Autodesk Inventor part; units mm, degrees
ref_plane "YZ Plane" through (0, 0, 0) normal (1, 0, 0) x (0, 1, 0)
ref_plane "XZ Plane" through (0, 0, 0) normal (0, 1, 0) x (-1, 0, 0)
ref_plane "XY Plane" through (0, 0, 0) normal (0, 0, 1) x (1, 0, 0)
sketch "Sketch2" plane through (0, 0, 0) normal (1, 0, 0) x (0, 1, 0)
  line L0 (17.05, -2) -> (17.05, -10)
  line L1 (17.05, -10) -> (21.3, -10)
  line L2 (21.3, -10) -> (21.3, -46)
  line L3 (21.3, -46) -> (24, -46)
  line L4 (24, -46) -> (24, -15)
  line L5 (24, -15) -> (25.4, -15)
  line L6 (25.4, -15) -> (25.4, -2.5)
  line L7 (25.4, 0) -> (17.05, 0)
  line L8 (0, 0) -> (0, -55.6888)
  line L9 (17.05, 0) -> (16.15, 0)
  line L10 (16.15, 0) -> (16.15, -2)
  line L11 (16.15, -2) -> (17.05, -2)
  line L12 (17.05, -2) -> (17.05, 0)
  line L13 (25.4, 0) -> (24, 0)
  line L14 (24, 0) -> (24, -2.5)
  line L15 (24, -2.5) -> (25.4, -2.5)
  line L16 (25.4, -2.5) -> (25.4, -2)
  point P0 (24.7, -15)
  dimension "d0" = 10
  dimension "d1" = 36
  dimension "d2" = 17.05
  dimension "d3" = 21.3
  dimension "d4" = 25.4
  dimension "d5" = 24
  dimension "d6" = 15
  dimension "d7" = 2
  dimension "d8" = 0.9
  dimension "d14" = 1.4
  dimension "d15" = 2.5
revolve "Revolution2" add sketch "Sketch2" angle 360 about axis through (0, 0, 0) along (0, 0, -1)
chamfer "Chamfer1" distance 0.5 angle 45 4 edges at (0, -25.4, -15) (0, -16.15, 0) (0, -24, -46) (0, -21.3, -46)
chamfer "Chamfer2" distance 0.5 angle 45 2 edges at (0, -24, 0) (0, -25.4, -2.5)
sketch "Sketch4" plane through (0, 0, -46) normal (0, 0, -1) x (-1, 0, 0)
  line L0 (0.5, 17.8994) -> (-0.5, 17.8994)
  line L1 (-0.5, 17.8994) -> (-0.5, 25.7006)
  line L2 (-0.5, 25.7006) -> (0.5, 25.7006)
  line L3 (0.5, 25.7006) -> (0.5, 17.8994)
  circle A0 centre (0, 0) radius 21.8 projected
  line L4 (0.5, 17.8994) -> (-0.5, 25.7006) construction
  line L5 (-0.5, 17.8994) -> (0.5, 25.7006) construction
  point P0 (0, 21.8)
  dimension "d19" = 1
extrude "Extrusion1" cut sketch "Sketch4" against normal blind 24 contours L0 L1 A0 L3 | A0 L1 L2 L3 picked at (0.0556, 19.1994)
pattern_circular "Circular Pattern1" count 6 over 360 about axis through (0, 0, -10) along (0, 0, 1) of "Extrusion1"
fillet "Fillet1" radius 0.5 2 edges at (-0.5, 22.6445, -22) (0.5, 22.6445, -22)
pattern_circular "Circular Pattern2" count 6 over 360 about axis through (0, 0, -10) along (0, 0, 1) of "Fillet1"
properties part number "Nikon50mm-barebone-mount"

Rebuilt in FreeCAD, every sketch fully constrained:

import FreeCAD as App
import Part
import Sketcher

V = App.Vector
Q = App.Units.Quantity


def edges_at(feature, points):
    """Names of the edges that pass closest to the given points."""
    edges = feature.Shape.Edges
    near = lambda p: min(range(len(edges)), key=lambda i: edges[i].distToShape(Part.Vertex(*p))[0])
    return sorted({f"Edge{near(p) + 1}" for p in points})

doc = App.newDocument("Part")
body = doc.addObject("PartDesign::Body", "Body")

sketch1 = body.newObject("Sketcher::SketchObject", "Sketch")
sketch1.AttachmentSupport = (doc.getObject("YZ_Plane"), [""])
sketch1.MapMode = "FlatFace"
sketch1.addGeometry([
    Part.LineSegment(V(24, 0, 0), V(16.15, 0, 0)),
    Part.LineSegment(V(16.15, 0, 0), V(16.15, -2, 0)),
    Part.LineSegment(V(16.15, -2, 0), V(17.05, -2, 0)),
    Part.LineSegment(V(17.05, -2, 0), V(17.05, -10, 0)),
    Part.LineSegment(V(17.05, -10, 0), V(21.3, -10, 0)),
    Part.LineSegment(V(21.3, -10, 0), V(21.3, -46, 0)),
    Part.LineSegment(V(21.3, -46, 0), V(24, -46, 0)),
    Part.LineSegment(V(24, -46, 0), V(24, -15, 0)),
    Part.LineSegment(V(24, -15, 0), V(25.4, -15, 0)),
    Part.LineSegment(V(25.4, -15, 0), V(25.4, -2.5, 0)),
    Part.LineSegment(V(25.4, -2.5, 0), V(24, -2.5, 0)),
    Part.LineSegment(V(24, -2.5, 0), V(24, 0, 0)),
], False)
sketch1.addConstraint([
    Sketcher.Constraint("Coincident", 0, 2, 1, 1),
    Sketcher.Constraint("Coincident", 1, 2, 2, 1),
    Sketcher.Constraint("Coincident", 2, 2, 3, 1),
    Sketcher.Constraint("Coincident", 3, 2, 4, 1),
    Sketcher.Constraint("Coincident", 4, 2, 5, 1),
    Sketcher.Constraint("Coincident", 5, 2, 6, 1),
    Sketcher.Constraint("Coincident", 6, 2, 7, 1),
    Sketcher.Constraint("Coincident", 7, 2, 8, 1),
    Sketcher.Constraint("Coincident", 8, 2, 9, 1),
    Sketcher.Constraint("Coincident", 9, 2, 10, 1),
    Sketcher.Constraint("Coincident", 10, 2, 11, 1),
    Sketcher.Constraint("Coincident", 11, 2, 0, 1),
    Sketcher.Constraint("Horizontal", 0),
    Sketcher.Constraint("Vertical", 1),
    Sketcher.Constraint("Horizontal", 2),
    Sketcher.Constraint("Vertical", 3),
    Sketcher.Constraint("Horizontal", 4),
    Sketcher.Constraint("Vertical", 5),
    Sketcher.Constraint("Horizontal", 6),
    Sketcher.Constraint("Vertical", 7),
    Sketcher.Constraint("Horizontal", 8),
    Sketcher.Constraint("Vertical", 9),
    Sketcher.Constraint("Horizontal", 10),
    Sketcher.Constraint("Vertical", 11),
    Sketcher.Constraint("PointOnObject", 0, 2, -1),
    Sketcher.Constraint("Vertical", 7, 2, 10, 2),
    Sketcher.Constraint("DistanceY", 1, 2, 1, 1, Q("2 mm")),
    Sketcher.Constraint("DistanceY", 5, 2, 5, 1, Q("36 mm")),
    Sketcher.Constraint("DistanceX", 2, 1, 2, 2, Q("0.9 mm")),
    Sketcher.Constraint("DistanceX", 8, 1, 8, 2, Q("1.4 mm")),
    Sketcher.Constraint("DistanceY", 11, 1, 11, 2, Q("2.5 mm")),
    Sketcher.Constraint("DistanceY", 3, 2, -1, 1, Q("10 mm")),
    Sketcher.Constraint("DistanceX", -1, 1, 6, 2, Q("24 mm")),
    Sketcher.Constraint("DistanceY", 7, 2, -1, 1, Q("15 mm")),
    Sketcher.Constraint("DistanceX", -1, 1, 4, 2, Q("21.3 mm")),
    Sketcher.Constraint("DistanceX", -1, 1, 2, 2, Q("17.05 mm")),
])
revolution = body.newObject("PartDesign::Revolution", "Revolution")
revolution.Profile = sketch1
revolution.ReferenceAxis = (sketch1, ["V_Axis"])
revolution.Angle = 360
doc.recompute()

chamfer = body.newObject("PartDesign::Chamfer", "Chamfer")
chamfer.Base = (revolution, edges_at(revolution, [
    (0, -25.4, -15),
    (0, -16.15, 0),
    (0, -24, -46),
    (0, -21.3, -46),
]))
chamfer.Size = 0.5
doc.recompute()

chamfer2 = body.newObject("PartDesign::Chamfer", "Chamfer001")
chamfer2.Base = (chamfer, edges_at(chamfer, [(0, -24, 0), (0, -25.4, -2.5)]))
chamfer2.Size = 0.5

sketch2 = body.newObject("Sketcher::SketchObject", "Sketch001")
sketch2.AttachmentSupport = (doc.getObject("XY_Plane"), [""])
sketch2.MapMode = "FlatFace"
sketch2.AttachmentOffset = App.Placement(V(0, 0, -46), App.Rotation())
sketch2.addGeometry([
    Part.LineSegment(V(0.5, 17.8994, 0), V(-0.5, 17.8994, 0)),
    Part.LineSegment(V(-0.5, 17.8994, 0), V(-0.5, 25.7006, 0)),
    Part.LineSegment(V(-0.5, 25.7006, 0), V(0.5, 25.7006, 0)),
    Part.LineSegment(V(0.5, 25.7006, 0), V(0.5, 17.8994, 0)),
], False)
sketch2.addConstraint([
    Sketcher.Constraint("Coincident", 0, 2, 1, 1),
    Sketcher.Constraint("Coincident", 1, 2, 2, 1),
    Sketcher.Constraint("Coincident", 2, 2, 3, 1),
    Sketcher.Constraint("Coincident", 3, 2, 0, 1),
    Sketcher.Constraint("Horizontal", 0),
    Sketcher.Constraint("Vertical", 1),
    Sketcher.Constraint("Horizontal", 2),
    Sketcher.Constraint("Vertical", 3),
    Sketcher.Constraint("DistanceX", 0, 2, 0, 1, Q("1 mm")),
    Sketcher.Constraint("DistanceX", 0, 2, -1, 1, Q("0.5 mm")),
    Sketcher.Constraint("DistanceY", 1, 1, 1, 2, Q("7.8012 mm")),
    Sketcher.Constraint("DistanceY", -1, 1, 0, 2, Q("17.8994 mm")),
])
pocket1 = body.newObject("PartDesign::Pocket", "Pocket")
pocket1.Profile = sketch2
pocket1.Length = 24
pocket1.Reversed = True
doc.recompute()

polarpattern = body.newObject("PartDesign::PolarPattern", "PolarPattern")
polarpattern.Originals = [pocket1]
polarpattern.Axis = (doc.getObject("Z_Axis"), [""])
polarpattern.Angle = 360
polarpattern.Occurrences = 6
body.Tip = polarpattern
doc.recompute()

fillet = body.newObject("PartDesign::Fillet", "Fillet")
fillet.Base = (polarpattern, edges_at(polarpattern, [(-0.5, 22.645, -22), (0.5, 22.645, -22)]))
fillet.Radius = 0.5
doc.recompute()

polarpattern2 = body.newObject("PartDesign::PolarPattern", "PolarPattern001")
polarpattern2.Originals = [fillet]
polarpattern2.Axis = (doc.getObject("Z_Axis"), [""])
polarpattern2.Angle = 360
polarpattern2.Occurrences = 6
body.Tip = polarpattern2

doc.recompute()
